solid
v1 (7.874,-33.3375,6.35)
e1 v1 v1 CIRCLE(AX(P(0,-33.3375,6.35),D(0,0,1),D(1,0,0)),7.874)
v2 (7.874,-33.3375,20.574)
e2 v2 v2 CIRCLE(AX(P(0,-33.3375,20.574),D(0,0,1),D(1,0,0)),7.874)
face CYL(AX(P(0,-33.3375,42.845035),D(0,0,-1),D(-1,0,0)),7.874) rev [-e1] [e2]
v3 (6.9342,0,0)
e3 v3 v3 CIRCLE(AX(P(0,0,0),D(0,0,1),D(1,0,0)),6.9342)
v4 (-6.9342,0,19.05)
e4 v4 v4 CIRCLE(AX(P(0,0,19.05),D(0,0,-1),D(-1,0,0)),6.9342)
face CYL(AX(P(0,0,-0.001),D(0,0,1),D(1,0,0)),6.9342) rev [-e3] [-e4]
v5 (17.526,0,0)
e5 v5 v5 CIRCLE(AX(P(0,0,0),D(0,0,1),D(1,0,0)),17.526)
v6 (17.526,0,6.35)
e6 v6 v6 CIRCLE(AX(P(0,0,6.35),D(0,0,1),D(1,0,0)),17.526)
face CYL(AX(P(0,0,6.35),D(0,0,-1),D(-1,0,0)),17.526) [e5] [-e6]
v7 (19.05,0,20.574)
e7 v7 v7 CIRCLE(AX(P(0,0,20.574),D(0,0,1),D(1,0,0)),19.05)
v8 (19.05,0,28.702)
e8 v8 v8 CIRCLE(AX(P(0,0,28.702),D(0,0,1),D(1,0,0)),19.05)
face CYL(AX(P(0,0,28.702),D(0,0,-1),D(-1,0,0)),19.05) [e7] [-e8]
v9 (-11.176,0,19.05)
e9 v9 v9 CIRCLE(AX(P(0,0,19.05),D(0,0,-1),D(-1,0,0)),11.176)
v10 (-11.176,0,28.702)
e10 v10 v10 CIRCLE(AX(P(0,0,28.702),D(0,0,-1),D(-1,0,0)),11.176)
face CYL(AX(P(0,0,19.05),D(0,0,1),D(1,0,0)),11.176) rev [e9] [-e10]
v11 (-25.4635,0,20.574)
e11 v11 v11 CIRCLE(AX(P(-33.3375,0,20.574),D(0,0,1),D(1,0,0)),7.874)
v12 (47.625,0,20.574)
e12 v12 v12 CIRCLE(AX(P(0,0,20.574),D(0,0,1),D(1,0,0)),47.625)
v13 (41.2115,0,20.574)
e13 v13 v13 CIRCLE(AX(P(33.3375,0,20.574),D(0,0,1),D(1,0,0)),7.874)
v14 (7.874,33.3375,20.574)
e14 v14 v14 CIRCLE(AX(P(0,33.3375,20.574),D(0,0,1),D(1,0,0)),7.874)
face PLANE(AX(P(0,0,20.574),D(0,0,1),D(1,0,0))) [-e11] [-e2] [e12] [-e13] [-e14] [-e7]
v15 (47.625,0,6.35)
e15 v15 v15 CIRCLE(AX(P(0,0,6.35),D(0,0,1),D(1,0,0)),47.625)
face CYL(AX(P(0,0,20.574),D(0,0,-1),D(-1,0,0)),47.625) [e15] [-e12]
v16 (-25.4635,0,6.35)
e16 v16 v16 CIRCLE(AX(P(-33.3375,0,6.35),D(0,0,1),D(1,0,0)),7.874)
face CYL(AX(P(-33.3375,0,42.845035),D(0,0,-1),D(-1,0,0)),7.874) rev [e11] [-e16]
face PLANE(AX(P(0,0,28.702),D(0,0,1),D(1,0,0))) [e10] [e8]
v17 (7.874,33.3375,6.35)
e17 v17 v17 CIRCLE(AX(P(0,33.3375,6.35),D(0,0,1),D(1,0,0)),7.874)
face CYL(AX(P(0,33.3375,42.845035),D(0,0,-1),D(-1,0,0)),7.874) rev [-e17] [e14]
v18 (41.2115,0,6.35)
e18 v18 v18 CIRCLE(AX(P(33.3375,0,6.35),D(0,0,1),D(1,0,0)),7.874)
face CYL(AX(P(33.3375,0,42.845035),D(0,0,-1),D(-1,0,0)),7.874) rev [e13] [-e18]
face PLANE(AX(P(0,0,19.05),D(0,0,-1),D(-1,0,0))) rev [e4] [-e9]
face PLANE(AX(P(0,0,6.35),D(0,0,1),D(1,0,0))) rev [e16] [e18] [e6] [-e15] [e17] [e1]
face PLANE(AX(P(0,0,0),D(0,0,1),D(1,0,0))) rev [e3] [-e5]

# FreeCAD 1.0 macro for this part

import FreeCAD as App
import Part
import Sketcher
from FreeCAD import Vector
Q = App.Units.Quantity

doc = App.newDocument("Part")
body = doc.addObject("PartDesign::Body", "Body")

# Sketch on XY plane
sketch1 = doc.addObject("Sketcher::SketchObject", "Sketch")
body.addObject(sketch1)
sketch1.AttachmentSupport = (doc.XY_Plane, [""])
sketch1.MapMode = "FlatFace"
sketch1.addGeometry(Part.Circle(Vector(0, 0, 0), Vector(0, 0, 1), 17.526), False)
sketch1.addConstraint(Sketcher.Constraint("Coincident", 0, 3, -1, 1))
sketch1.addConstraint(Sketcher.Constraint("Diameter", 0, Q("1.38 in")))
pad1 = doc.addObject("PartDesign::Pad", "Pad")
body.addObject(pad1)
pad1.Profile = sketch1
pad1.Length = Q("0.25 in")

# Sketch on XY plane
sketch2 = doc.addObject("Sketcher::SketchObject", "Sketch001")
body.addObject(sketch2)
sketch2.AttachmentSupport = (doc.XY_Plane, [""])
sketch2.MapMode = "FlatFace"
sketch2.AttachmentOffset = App.Placement(Vector(0, 0, 0.25 * 25.4), App.Rotation())
sketch2.addGeometry(Part.Circle(Vector(0, 0, 0), Vector(0, 0, 1), 47.625), False)
sketch2.addConstraint(Sketcher.Constraint("Coincident", 0, 3, -1, 1))
sketch2.addConstraint(Sketcher.Constraint("Diameter", 0, Q("3.75 in")))
pad2 = doc.addObject("PartDesign::Pad", "Pad001")
body.addObject(pad2)
pad2.Profile = sketch2
pad2.Length = Q("0.56 in")

# Sketch on XY plane
sketch3 = doc.addObject("Sketcher::SketchObject", "Sketch002")
body.addObject(sketch3)
sketch3.AttachmentSupport = (doc.XY_Plane, [""])
sketch3.MapMode = "FlatFace"
sketch3.AttachmentOffset = App.Placement(Vector(0, 0, 0.81 * 25.4), App.Rotation())
sketch3.addGeometry(Part.Circle(Vector(0, 0, 0), Vector(0, 0, 1), 19.05), False)
sketch3.addConstraint(Sketcher.Constraint("Coincident", 0, 3, -1, 1))
sketch3.addConstraint(Sketcher.Constraint("Diameter", 0, Q("1.5 in")))
pad3 = doc.addObject("PartDesign::Pad", "Pad002")
body.addObject(pad3)
pad3.Profile = sketch3
pad3.Length = Q("0.32 in")

# Sketch on XY plane
sketch4 = doc.addObject("Sketcher::SketchObject", "Sketch003")
body.addObject(sketch4)
sketch4.AttachmentSupport = (doc.XY_Plane, [""])
sketch4.MapMode = "FlatFace"
sketch4.AttachmentOffset = App.Placement(Vector(0, 0, 0.25 * 25.4), App.Rotation())
sketch4.addGeometry(Part.Circle(Vector(0, 33.3375, 0), Vector(0, 0, 1), 7.874), False)
sketch4.addConstraint(Sketcher.Constraint("PointOnObject", 0, 3, -2))
sketch4.addConstraint(Sketcher.Constraint("Diameter", 0, Q("0.62 in")))
sketch4.addConstraint(Sketcher.Constraint("DistanceY", -1, 1, 0, 3, Q("1.3125 in")))
pocket1 = doc.addObject("PartDesign::Pocket", "Pocket")
body.addObject(pocket1)
pocket1.Profile = sketch4
pocket1.Length = Q("0.56 in")
pocket1.Reversed = True
doc.recompute()

polarpattern = doc.addObject("PartDesign::PolarPattern", "PolarPattern")
body.addObject(polarpattern)
polarpattern.Originals = [pocket1]
polarpattern.Axis = (doc.Z_Axis, [""])
polarpattern.Angle = 360
polarpattern.Occurrences = 4
body.Tip = polarpattern

# Sketch on XY plane
sketch5 = doc.addObject("Sketcher::SketchObject", "Sketch004")
body.addObject(sketch5)
sketch5.AttachmentSupport = (doc.XY_Plane, [""])
sketch5.MapMode = "FlatFace"
sketch5.AttachmentOffset = App.Placement(Vector(0, 0, 1.13 * 25.4), App.Rotation())
sketch5.addGeometry(Part.Circle(Vector(0, 0, 0), Vector(0, 0, 1), 11.176), False)
sketch5.addConstraint(Sketcher.Constraint("Coincident", 0, 3, -1, 1))
sketch5.addConstraint(Sketcher.Constraint("Diameter", 0, Q("0.88 in")))
pocket2 = doc.addObject("PartDesign::Pocket", "Pocket001")
body.addObject(pocket2)
pocket2.Profile = sketch5
pocket2.Length = Q("0.38 in")

# Sketch on XY plane
sketch6 = doc.addObject("Sketcher::SketchObject", "Sketch005")
body.addObject(sketch6)
sketch6.AttachmentSupport = (doc.XY_Plane, [""])
sketch6.MapMode = "FlatFace"
sketch6.AttachmentOffset = App.Placement(Vector(0, 0, 1.13 * 25.4), App.Rotation())
sketch6.addGeometry(Part.Circle(Vector(0, 0, 0), Vector(0, 0, 1), 6.9342), False)
sketch6.addConstraint(Sketcher.Constraint("Coincident", 0, 3, -1, 1))
sketch6.addConstraint(Sketcher.Constraint("Diameter", 0, Q("0.546 in")))
pocket3 = doc.addObject("PartDesign::Pocket", "Pocket002")
body.addObject(pocket3)
pocket3.Profile = sketch6
pocket3.Length = Q("1.13 in")

doc.recompute()
